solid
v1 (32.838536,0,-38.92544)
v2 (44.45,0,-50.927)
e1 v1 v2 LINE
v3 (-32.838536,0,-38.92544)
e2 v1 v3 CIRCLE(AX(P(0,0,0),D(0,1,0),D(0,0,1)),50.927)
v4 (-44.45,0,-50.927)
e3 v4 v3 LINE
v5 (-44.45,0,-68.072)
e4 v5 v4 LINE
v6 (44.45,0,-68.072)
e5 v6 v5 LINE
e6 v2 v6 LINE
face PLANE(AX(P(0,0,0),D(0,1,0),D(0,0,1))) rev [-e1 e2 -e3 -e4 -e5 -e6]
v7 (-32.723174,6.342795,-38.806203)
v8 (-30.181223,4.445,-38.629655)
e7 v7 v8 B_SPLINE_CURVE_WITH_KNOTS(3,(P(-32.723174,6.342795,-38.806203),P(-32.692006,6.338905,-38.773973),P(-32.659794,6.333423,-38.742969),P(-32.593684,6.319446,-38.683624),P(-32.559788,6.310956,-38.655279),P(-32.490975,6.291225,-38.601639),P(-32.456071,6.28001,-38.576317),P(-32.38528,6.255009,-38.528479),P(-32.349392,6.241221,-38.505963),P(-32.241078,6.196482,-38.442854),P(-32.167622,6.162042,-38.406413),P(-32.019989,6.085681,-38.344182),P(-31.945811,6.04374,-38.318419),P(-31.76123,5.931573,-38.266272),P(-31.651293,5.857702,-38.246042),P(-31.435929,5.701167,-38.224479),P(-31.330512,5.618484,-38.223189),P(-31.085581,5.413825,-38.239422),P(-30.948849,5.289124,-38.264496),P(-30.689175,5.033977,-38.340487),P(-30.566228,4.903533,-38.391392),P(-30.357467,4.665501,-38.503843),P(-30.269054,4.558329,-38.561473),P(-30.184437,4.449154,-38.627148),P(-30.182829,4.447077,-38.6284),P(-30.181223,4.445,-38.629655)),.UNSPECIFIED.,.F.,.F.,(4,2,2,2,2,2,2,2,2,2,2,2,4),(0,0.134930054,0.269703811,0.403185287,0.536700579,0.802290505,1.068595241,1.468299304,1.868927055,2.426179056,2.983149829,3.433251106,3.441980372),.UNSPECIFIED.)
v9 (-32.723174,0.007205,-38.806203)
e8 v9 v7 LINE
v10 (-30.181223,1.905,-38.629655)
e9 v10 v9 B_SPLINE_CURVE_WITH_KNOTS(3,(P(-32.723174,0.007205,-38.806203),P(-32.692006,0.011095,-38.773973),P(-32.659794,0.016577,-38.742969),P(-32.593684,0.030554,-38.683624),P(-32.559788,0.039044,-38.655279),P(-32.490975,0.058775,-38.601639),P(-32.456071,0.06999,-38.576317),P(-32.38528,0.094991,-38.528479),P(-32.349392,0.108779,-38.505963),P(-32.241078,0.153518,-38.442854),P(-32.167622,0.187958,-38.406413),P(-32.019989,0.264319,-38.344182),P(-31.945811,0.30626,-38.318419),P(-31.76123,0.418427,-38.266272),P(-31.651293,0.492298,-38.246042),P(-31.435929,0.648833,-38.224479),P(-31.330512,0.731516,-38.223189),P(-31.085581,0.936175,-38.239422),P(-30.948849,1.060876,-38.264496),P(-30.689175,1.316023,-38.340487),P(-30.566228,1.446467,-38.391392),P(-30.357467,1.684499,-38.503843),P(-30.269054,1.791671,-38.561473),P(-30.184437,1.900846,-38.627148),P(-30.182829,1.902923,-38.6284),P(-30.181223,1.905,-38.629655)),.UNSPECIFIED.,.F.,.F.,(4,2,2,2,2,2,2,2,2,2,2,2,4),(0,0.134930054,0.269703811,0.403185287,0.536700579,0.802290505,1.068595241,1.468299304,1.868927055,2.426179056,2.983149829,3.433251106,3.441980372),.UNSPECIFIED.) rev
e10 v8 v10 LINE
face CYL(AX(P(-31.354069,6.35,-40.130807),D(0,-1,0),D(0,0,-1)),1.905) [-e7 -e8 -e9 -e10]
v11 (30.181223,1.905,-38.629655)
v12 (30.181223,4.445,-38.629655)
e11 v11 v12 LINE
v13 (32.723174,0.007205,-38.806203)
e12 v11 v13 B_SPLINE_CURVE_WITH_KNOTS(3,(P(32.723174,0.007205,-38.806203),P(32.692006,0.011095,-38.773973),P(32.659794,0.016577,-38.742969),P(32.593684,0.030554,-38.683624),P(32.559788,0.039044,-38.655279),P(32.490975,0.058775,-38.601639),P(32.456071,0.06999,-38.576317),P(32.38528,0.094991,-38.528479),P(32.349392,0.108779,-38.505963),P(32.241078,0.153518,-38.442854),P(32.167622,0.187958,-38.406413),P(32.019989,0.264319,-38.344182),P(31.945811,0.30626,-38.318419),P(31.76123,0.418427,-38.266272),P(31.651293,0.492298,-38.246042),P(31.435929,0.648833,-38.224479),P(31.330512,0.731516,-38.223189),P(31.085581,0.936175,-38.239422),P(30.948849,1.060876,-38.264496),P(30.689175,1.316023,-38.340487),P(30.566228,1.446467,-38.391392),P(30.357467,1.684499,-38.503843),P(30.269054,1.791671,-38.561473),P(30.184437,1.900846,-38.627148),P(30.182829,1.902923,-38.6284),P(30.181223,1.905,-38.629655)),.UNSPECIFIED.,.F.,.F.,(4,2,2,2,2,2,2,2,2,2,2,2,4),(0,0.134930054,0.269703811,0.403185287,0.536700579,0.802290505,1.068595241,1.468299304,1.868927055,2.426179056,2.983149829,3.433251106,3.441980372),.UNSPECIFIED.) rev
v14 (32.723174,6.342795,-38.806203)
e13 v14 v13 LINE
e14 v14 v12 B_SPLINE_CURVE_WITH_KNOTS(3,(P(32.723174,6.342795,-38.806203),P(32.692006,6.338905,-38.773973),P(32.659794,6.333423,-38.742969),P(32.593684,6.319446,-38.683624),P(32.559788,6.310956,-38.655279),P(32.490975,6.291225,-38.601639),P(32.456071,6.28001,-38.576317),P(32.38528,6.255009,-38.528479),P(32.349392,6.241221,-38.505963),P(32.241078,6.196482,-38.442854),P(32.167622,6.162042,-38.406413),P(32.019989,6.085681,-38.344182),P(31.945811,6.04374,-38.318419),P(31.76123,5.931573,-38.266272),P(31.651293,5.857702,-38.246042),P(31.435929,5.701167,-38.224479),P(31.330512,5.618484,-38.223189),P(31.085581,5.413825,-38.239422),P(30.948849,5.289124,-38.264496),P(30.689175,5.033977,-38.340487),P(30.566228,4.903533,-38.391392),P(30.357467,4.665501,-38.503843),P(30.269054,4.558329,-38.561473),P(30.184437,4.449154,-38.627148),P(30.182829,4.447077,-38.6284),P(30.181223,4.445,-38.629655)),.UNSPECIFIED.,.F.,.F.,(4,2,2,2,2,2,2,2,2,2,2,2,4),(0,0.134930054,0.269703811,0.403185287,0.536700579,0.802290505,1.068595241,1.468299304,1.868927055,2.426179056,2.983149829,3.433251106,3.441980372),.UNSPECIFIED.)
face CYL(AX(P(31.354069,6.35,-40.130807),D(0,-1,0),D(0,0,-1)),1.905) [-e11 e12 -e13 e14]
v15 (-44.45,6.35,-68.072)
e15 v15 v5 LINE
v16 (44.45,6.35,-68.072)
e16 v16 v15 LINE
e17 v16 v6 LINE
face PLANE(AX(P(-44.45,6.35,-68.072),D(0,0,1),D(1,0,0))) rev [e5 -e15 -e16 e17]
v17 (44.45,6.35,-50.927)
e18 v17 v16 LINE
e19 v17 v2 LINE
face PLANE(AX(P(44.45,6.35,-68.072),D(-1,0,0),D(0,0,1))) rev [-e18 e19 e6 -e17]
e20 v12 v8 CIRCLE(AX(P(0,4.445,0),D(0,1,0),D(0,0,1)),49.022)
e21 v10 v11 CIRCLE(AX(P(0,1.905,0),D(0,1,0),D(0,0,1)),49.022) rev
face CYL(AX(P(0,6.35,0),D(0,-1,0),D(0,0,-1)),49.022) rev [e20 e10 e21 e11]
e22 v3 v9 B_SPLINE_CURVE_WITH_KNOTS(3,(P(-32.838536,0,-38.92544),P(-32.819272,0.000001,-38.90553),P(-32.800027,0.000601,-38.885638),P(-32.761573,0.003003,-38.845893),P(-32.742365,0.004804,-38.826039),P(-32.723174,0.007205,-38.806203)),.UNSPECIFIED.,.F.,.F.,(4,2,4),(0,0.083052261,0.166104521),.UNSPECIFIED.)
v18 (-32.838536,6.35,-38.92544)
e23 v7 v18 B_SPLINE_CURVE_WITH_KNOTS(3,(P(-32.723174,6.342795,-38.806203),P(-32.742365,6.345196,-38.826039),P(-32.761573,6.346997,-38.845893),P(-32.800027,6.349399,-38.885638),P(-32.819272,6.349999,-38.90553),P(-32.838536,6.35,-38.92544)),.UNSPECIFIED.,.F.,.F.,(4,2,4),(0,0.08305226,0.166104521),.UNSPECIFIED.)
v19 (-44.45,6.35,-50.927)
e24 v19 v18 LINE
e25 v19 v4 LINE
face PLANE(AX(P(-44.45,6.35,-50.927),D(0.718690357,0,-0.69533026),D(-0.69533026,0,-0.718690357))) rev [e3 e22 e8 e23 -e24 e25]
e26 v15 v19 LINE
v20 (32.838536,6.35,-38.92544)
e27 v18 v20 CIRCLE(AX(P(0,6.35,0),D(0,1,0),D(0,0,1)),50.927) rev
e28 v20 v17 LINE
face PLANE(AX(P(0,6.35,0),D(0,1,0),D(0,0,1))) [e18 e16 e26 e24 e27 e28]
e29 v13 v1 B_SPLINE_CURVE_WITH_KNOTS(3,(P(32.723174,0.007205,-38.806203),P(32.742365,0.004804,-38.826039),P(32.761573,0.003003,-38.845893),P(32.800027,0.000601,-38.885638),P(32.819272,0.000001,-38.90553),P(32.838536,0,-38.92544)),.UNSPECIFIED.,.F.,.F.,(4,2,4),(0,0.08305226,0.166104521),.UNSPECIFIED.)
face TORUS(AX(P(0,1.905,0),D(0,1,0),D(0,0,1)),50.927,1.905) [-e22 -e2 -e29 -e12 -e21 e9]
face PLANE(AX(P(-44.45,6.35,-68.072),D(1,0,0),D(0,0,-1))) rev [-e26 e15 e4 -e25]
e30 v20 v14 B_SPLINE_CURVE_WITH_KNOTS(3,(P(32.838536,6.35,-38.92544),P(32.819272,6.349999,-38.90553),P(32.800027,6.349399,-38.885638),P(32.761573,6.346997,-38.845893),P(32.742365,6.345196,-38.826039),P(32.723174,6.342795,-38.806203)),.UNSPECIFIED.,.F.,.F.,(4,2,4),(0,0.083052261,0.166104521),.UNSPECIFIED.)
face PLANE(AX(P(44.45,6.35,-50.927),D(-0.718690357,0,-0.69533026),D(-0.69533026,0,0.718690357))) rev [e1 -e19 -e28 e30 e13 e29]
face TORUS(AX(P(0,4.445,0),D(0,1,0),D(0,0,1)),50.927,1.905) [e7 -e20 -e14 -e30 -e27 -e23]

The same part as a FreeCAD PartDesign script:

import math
import FreeCAD as App
import Part
import Sketcher

V = App.Vector
Q = App.Units.Quantity


def edges_at(feature, points):
    """Names of the edges that pass closest to the given points."""
    edges = feature.Shape.Edges
    near = lambda p: min(range(len(edges)), key=lambda i: edges[i].distToShape(Part.Vertex(*p))[0])
    return sorted({f"Edge{near(p) + 1}" for p in points})

doc = App.newDocument("Part")
params = doc.addObject("Spreadsheet::Sheet", "Params")
for row, (alias, value) in enumerate([
    ("sketch1_radius", "1.93 in"),
    ("sketch1_width", "3.5 in"),
    ("sketch1_height", "0.675 in"),
    ("pad1_length", "0.25 in"),
    ("fillet_radius", "0.075 in"),
], start=1):
    params.set(f"A{row}", alias)
    params.set(f"B{row}", "=" + value)
    params.setAlias(f"B{row}", alias)

body = doc.addObject("PartDesign::Body", "Body")

# Sketch on XZ plane
sketch1 = body.newObject("Sketcher::SketchObject", "Sketch")
sketch1.AttachmentSupport = (doc.getObject("XZ_Plane"), [""])
sketch1.MapMode = "FlatFace"
sketch1.addGeometry([
    Part.LineSegment(V(44, -68, 0), V(-44, -68, 0)),  # 0
    Part.LineSegment(V(-44, -68, 0), V(-44, -51, 0)),  # 1
    Part.LineSegment(V(-44, -51, 0), V(-32, -38, 0)),  # 2
    Part.ArcOfCircle(Part.Circle(V(0, 0, 0), V(0, 0, 1), 49), math.radians(-130), math.radians(-50)),  # 3
    Part.LineSegment(V(32, -38, 0), V(44, -51, 0)),  # 4
    Part.LineSegment(V(44, -51, 0), V(44, -68, 0)),  # 5
], False)
sketch1.addConstraint([
    Sketcher.Constraint("Coincident", 0, 2, 1, 1),
    Sketcher.Constraint("Coincident", 1, 2, 2, 1),
    Sketcher.Constraint("Coincident", 2, 2, 3, 1),
    Sketcher.Constraint("Coincident", 3, 2, 4, 1),
    Sketcher.Constraint("Coincident", 4, 2, 5, 1),
    Sketcher.Constraint("Coincident", 5, 2, 0, 1),
    Sketcher.Constraint("Horizontal", 0),
    Sketcher.Constraint("Vertical", 1),
    Sketcher.Constraint("Vertical", 5),
    Sketcher.Constraint("Coincident", 3, 3, -1, 1),
    Sketcher.Constraint("Symmetric", 1, 2, 4, 2, -2),
    Sketcher.Constraint("Horizontal", 2, 2, 3, 2),
    Sketcher.Constraint("Radius", 3, Q("1.93 in")),
    Sketcher.Constraint("DistanceX", 0, 2, 0, 1, Q("3.5 in")),
    Sketcher.Constraint("DistanceY", 1, 1, 1, 2, Q("0.675 in")),
    Sketcher.Constraint("DistanceY", 0, 2, -1, 1, Q("2.68 in")),
    Sketcher.Constraint("DistanceY", 2, 2, -1, 1, 37.553031),
])
sketch1.setExpression("Constraints[12]", "Params.sketch1_radius")
sketch1.setExpression("Constraints[13]", "Params.sketch1_width")
sketch1.setExpression("Constraints[14]", "Params.sketch1_height")
pad1 = body.newObject("PartDesign::Pad", "Pad")
pad1.Profile = sketch1
pad1.setExpression("Length", "Params.pad1_length")
pad1.Reversed = True
doc.recompute()

fillet = body.newObject("PartDesign::Fillet", "Fillet")
fillet.Base = (pad1, edges_at(pad1, [
    (31.511, 3.175, -37.553),
    (-31.511, 3.175, -37.553),
    (0, 6.35, -49.022),
    (0, 0, -49.022),
]))
fillet.setExpression("Radius", "Params.fillet_radius")

doc.recompute()
